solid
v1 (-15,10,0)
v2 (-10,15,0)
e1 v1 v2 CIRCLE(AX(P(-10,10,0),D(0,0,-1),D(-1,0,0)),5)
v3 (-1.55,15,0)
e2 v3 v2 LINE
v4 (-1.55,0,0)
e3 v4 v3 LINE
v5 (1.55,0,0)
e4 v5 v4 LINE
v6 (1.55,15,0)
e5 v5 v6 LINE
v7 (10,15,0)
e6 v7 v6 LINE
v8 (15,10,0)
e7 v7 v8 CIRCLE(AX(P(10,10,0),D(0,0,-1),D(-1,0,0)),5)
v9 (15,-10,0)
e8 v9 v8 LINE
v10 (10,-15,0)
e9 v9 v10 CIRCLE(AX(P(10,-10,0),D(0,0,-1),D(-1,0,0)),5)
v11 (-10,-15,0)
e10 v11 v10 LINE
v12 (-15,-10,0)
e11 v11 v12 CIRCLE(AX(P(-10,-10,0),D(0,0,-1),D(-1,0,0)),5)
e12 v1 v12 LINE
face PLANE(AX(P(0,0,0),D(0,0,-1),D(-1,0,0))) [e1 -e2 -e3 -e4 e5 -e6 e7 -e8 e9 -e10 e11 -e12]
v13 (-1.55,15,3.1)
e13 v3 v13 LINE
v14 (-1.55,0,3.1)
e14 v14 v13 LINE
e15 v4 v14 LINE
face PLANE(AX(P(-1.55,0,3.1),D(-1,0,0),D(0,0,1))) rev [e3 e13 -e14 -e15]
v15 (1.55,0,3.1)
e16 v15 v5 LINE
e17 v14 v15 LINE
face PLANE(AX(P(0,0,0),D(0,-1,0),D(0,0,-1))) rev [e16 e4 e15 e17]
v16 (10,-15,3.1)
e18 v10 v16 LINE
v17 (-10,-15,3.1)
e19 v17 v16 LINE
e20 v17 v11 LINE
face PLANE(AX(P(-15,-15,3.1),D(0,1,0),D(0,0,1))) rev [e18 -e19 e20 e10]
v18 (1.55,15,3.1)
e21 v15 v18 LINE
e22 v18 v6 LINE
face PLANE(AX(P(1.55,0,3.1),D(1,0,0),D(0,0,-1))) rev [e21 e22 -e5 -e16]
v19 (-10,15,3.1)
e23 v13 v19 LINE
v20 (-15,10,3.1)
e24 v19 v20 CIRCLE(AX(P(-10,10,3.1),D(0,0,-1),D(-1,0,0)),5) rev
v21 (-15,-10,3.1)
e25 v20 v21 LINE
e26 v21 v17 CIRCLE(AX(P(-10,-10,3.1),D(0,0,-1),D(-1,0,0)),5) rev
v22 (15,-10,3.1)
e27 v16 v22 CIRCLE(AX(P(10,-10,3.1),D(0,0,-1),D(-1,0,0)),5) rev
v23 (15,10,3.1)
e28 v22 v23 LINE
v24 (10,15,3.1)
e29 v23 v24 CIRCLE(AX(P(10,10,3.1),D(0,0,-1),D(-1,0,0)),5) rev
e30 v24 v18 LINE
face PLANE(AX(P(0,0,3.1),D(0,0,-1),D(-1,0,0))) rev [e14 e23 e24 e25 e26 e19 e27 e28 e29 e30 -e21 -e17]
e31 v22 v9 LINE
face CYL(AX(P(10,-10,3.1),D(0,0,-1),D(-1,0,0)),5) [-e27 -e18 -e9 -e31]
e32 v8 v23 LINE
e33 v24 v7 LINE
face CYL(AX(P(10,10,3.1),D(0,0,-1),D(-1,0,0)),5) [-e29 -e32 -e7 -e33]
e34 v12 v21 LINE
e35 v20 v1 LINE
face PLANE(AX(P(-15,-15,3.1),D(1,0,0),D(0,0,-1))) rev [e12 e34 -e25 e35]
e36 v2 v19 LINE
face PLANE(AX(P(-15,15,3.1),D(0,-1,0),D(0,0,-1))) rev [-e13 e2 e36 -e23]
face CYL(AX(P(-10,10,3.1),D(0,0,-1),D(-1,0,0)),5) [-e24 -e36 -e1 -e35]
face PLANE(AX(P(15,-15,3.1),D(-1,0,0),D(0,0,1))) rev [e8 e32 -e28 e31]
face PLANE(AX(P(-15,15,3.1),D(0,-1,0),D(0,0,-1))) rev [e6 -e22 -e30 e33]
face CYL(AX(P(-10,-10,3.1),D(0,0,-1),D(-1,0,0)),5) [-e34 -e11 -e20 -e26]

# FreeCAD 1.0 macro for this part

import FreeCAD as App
import Part
import Sketcher
from FreeCAD import Vector


def edges_at(feature, points):
    """Names of the edges that pass closest to the given points."""
    edges = feature.Shape.Edges
    near = lambda p: min(range(len(edges)), key=lambda i: edges[i].distToShape(Part.Vertex(*p))[0])
    return sorted({f"Edge{near(p) + 1}" for p in points})

doc = App.newDocument("Part")
body = doc.addObject("PartDesign::Body", "Body")

# Sketch on XY plane
sketch1 = body.newObject("Sketcher::SketchObject", "Sketch")
sketch1.AttachmentSupport = (doc.getObject("XY_Plane"), [""])
sketch1.MapMode = "FlatFace"
sketch1.addGeometry(Part.LineSegment(Vector(-15, 15, 0), Vector(-15, -15, 0)), False)
sketch1.addGeometry(Part.LineSegment(Vector(-15, -15, 0), Vector(15, -15, 0)), False)
sketch1.addGeometry(Part.LineSegment(Vector(15, -15, 0), Vector(15, 15, 0)), False)
sketch1.addGeometry(Part.LineSegment(Vector(15, 15, 0), Vector(-15, 15, 0)), False)
sketch1.addConstraint(Sketcher.Constraint("Coincident", 0, 2, 1, 1))
sketch1.addConstraint(Sketcher.Constraint("Coincident", 1, 2, 2, 1))
sketch1.addConstraint(Sketcher.Constraint("Coincident", 2, 2, 3, 1))
sketch1.addConstraint(Sketcher.Constraint("Coincident", 3, 2, 0, 1))
sketch1.addConstraint(Sketcher.Constraint("Vertical", 0))
sketch1.addConstraint(Sketcher.Constraint("Horizontal", 1))
sketch1.addConstraint(Sketcher.Constraint("Vertical", 2))
sketch1.addConstraint(Sketcher.Constraint("Horizontal", 3))
sketch1.addConstraint(Sketcher.Constraint("Symmetric", 0, 2, 2, 2, -1, 1))
sketch1.addConstraint(Sketcher.Constraint("Equal", 3, 0))
sketch1.addConstraint(Sketcher.Constraint("DistanceX", 1, 1, 1, 2, 30.0))
pad1 = body.newObject("PartDesign::Pad", "Pad")
pad1.Profile = sketch1
pad1.Length = 3.1

# Sketch on XZ plane
sketch2 = body.newObject("Sketcher::SketchObject", "Sketch001")
sketch2.AttachmentSupport = (doc.getObject("XZ_Plane"), [""])
sketch2.MapMode = "FlatFace"
sketch2.AttachmentOffset = App.Placement(Vector(0, 0, -15), App.Rotation())
sketch2.addGeometry(Part.LineSegment(Vector(-1.6, 0, 0), Vector(-1.6, 3.1, 0)), False)
sketch2.addGeometry(Part.LineSegment(Vector(-1.6, 3.1, 0), Vector(1.6, 3.1, 0)), False)
sketch2.addGeometry(Part.LineSegment(Vector(1.6, 3.1, 0), Vector(1.6, 0, 0)), False)
sketch2.addGeometry(Part.LineSegment(Vector(1.6, 0, 0), Vector(-1.6, 0, 0)), False)
sketch2.addConstraint(Sketcher.Constraint("Coincident", 0, 2, 1, 1))
sketch2.addConstraint(Sketcher.Constraint("Coincident", 1, 2, 2, 1))
sketch2.addConstraint(Sketcher.Constraint("Coincident", 2, 2, 3, 1))
sketch2.addConstraint(Sketcher.Constraint("Coincident", 3, 2, 0, 1))
sketch2.addConstraint(Sketcher.Constraint("Vertical", 0))
sketch2.addConstraint(Sketcher.Constraint("Horizontal", 1))
sketch2.addConstraint(Sketcher.Constraint("Vertical", 2))
sketch2.addConstraint(Sketcher.Constraint("Horizontal", 3))
sketch2.addConstraint(Sketcher.Constraint("Symmetric", 2, 2, 3, 2, -1, 1))
sketch2.addConstraint(Sketcher.Constraint("Equal", 3, 0))
sketch2.addConstraint(Sketcher.Constraint("DistanceX", 1, 1, 1, 2, 3.1))
pocket1 = body.newObject("PartDesign::Pocket", "Pocket")
pocket1.Profile = sketch2
pocket1.Length = 15
pocket1.Reversed = True
doc.recompute()

fillet = body.newObject("PartDesign::Fillet", "Fillet")
fillet.Base = (pocket1, edges_at(pocket1, [
    (15, -15, 1.55),
    (-15, -15, 1.55),
    (-15, 15, 1.55),
    (15, 15, 1.55),
]))
fillet.Radius = 5

doc.recompute()
